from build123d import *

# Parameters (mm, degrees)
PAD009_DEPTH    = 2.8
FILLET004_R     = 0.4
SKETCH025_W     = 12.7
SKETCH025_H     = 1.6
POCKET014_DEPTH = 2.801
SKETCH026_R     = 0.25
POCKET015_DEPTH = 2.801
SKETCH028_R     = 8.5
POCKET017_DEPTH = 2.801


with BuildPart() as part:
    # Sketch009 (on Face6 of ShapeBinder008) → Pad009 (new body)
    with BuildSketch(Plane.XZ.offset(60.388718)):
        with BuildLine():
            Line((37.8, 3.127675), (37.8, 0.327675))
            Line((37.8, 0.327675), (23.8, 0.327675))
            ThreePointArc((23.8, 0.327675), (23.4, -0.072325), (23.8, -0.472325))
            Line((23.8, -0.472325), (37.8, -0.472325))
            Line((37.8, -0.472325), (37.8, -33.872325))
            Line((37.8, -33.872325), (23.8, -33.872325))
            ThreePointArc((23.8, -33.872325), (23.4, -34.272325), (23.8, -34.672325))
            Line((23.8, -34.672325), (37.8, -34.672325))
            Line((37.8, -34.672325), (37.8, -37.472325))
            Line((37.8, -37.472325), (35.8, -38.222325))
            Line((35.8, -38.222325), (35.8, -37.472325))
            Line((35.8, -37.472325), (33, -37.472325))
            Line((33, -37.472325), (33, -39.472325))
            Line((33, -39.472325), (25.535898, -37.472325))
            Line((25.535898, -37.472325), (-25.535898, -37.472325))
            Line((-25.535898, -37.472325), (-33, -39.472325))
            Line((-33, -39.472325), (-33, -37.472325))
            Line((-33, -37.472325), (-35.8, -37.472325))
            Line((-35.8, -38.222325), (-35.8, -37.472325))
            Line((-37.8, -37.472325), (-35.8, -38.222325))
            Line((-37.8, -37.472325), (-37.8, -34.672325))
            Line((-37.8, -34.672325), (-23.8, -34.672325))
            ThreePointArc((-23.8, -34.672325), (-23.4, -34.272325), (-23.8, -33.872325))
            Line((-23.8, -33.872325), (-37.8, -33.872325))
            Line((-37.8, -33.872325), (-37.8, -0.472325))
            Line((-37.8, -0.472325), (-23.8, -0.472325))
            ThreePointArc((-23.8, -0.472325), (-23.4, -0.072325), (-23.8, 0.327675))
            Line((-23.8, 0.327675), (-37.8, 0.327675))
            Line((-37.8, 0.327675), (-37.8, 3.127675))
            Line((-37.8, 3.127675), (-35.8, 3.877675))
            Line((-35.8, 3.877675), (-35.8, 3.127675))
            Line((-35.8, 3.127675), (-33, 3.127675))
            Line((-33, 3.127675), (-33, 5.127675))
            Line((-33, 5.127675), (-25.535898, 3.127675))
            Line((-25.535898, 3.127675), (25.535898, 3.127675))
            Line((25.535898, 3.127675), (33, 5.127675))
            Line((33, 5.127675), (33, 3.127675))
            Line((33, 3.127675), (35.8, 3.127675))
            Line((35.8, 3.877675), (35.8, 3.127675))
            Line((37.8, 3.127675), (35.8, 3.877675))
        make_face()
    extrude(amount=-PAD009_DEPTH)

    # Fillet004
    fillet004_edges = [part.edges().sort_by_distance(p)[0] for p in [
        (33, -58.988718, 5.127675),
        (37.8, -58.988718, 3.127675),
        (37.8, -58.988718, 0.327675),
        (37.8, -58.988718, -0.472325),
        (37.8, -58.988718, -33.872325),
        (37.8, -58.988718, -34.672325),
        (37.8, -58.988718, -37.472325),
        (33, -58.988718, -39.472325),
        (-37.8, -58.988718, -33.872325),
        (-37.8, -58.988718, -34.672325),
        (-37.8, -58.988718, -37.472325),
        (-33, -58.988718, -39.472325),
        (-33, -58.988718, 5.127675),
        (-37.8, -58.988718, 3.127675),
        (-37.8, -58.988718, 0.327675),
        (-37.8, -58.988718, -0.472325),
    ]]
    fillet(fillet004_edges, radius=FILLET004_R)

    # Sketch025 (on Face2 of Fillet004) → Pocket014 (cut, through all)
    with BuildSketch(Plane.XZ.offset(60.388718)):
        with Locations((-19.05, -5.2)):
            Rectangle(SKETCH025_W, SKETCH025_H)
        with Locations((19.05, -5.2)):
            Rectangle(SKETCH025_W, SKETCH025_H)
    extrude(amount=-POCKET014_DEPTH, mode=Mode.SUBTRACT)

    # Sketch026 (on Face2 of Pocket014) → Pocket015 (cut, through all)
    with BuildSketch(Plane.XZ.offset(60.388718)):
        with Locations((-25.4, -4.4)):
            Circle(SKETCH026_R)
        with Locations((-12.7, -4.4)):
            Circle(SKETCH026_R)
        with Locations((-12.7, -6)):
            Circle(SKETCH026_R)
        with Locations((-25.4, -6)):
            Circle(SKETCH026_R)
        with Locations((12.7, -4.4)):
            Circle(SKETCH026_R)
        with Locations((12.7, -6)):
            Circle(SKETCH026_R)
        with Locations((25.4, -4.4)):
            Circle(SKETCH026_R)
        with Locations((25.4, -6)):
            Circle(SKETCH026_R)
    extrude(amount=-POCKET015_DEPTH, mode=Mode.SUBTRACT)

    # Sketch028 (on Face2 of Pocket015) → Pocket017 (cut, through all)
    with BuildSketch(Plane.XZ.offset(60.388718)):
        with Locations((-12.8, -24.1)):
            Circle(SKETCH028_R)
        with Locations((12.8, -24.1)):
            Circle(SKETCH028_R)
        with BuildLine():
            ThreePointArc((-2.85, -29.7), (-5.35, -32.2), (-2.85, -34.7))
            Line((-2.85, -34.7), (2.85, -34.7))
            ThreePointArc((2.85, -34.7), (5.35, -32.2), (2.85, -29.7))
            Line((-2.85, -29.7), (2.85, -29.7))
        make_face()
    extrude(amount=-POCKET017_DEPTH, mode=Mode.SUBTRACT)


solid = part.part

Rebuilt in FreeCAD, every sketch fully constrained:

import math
import FreeCAD as App
import Part
import Sketcher
from FreeCAD import Vector
Q = App.Units.Quantity


def edges_at(feature, points):
    """Names of the edges that pass closest to the given points."""
    edges = feature.Shape.Edges
    near = lambda p: min(range(len(edges)), key=lambda i: edges[i].distToShape(Part.Vertex(*p))[0])
    return sorted({f"Edge{near(p) + 1}" for p in points})

doc = App.newDocument("Part")
body = doc.addObject("PartDesign::Body", "Body")

sketch1 = body.newObject("Sketcher::SketchObject", "Sketch")
sketch1.AttachmentSupport = (doc.getObject("XZ_Plane"), [""])
sketch1.MapMode = "FlatFace"
sketch1.AttachmentOffset = App.Placement(Vector(0, 0, 60.388718), App.Rotation())
sketch1.addGeometry(Part.LineSegment(Vector(37.8, 0.33, 0), Vector(37.8, 3.13, 0)), False)
sketch1.addGeometry(Part.LineSegment(Vector(37.8, 3.13, 0), Vector(35.8, 3.88, 0)), False)
sketch1.addGeometry(Part.LineSegment(Vector(35.8, 3.88, 0), Vector(35.8, 3.13, 0)), False)
sketch1.addGeometry(Part.LineSegment(Vector(35.8, 3.13, 0), Vector(33, 3.13, 0)), False)
sketch1.addGeometry(Part.LineSegment(Vector(33, 3.13, 0), Vector(33, 5.13, 0)), False)
sketch1.addGeometry(Part.LineSegment(Vector(33, 5.13, 0), Vector(25.54, 3.13, 0)), False)
sketch1.addGeometry(Part.LineSegment(Vector(25.54, 3.13, 0), Vector(-25.54, 3.13, 0)), False)
sketch1.addGeometry(Part.LineSegment(Vector(-25.54, 3.13, 0), Vector(-33, 5.13, 0)), False)
sketch1.addGeometry(Part.LineSegment(Vector(-33, 5.13, 0), Vector(-33, 3.13, 0)), False)
sketch1.addGeometry(Part.LineSegment(Vector(-33, 3.13, 0), Vector(-35.8, 3.13, 0)), False)
sketch1.addGeometry(Part.LineSegment(Vector(-35.8, 3.13, 0), Vector(-35.8, 3.88, 0)), False)
sketch1.addGeometry(Part.LineSegment(Vector(-35.8, 3.88, 0), Vector(-37.8, 3.13, 0)), False)
sketch1.addGeometry(Part.LineSegment(Vector(-37.8, 3.13, 0), Vector(-37.8, 0.33, 0)), False)
sketch1.addGeometry(Part.LineSegment(Vector(-37.8, 0.33, 0), Vector(-23.8, 0.33, 0)), False)
sketch1.addGeometry(Part.ArcOfCircle(Part.Circle(Vector(-23.8, -0.07, 0), Vector(0, 0, 1), 0.4), math.radians(-90), math.radians(90)), False)
sketch1.addGeometry(Part.LineSegment(Vector(-23.8, -0.47, 0), Vector(-37.8, -0.47, 0)), False)
sketch1.addGeometry(Part.LineSegment(Vector(-37.8, -0.47, 0), Vector(-37.8, -33.87, 0)), False)
sketch1.addGeometry(Part.LineSegment(Vector(-37.8, -33.87, 0), Vector(-23.8, -33.87, 0)), False)
sketch1.addGeometry(Part.ArcOfCircle(Part.Circle(Vector(-23.8, -34.27, 0), Vector(0, 0, 1), 0.4), math.radians(-90), math.radians(90)), False)
sketch1.addGeometry(Part.LineSegment(Vector(-23.8, -34.67, 0), Vector(-37.8, -34.67, 0)), False)
sketch1.addGeometry(Part.LineSegment(Vector(-37.8, -34.67, 0), Vector(-37.8, -37.47, 0)), False)
sketch1.addGeometry(Part.LineSegment(Vector(-37.8, -37.47, 0), Vector(-35.8, -38.22, 0)), False)
sketch1.addGeometry(Part.LineSegment(Vector(-35.8, -38.22, 0), Vector(-35.8, -37.47, 0)), False)
sketch1.addGeometry(Part.LineSegment(Vector(-35.8, -37.47, 0), Vector(-33, -37.47, 0)), False)
sketch1.addGeometry(Part.LineSegment(Vector(-33, -37.47, 0), Vector(-33, -39.47, 0)), False)
sketch1.addGeometry(Part.LineSegment(Vector(-33, -39.47, 0), Vector(-25.54, -37.47, 0)), False)
sketch1.addGeometry(Part.LineSegment(Vector(-25.54, -37.47, 0), Vector(25.54, -37.47, 0)), False)
sketch1.addGeometry(Part.LineSegment(Vector(25.54, -37.47, 0), Vector(33, -39.47, 0)), False)
sketch1.addGeometry(Part.LineSegment(Vector(33, -39.47, 0), Vector(33, -37.47, 0)), False)
sketch1.addGeometry(Part.LineSegment(Vector(33, -37.47, 0), Vector(35.8, -37.47, 0)), False)
sketch1.addGeometry(Part.LineSegment(Vector(35.8, -37.47, 0), Vector(35.8, -38.22, 0)), False)
sketch1.addGeometry(Part.LineSegment(Vector(35.8, -38.22, 0), Vector(37.8, -37.47, 0)), False)
sketch1.addGeometry(Part.LineSegment(Vector(37.8, -37.47, 0), Vector(37.8, -34.67, 0)), False)
sketch1.addGeometry(Part.LineSegment(Vector(37.8, -34.67, 0), Vector(23.8, -34.67, 0)), False)
sketch1.addGeometry(Part.ArcOfCircle(Part.Circle(Vector(23.8, -34.27, 0), Vector(0, 0, 1), 0.4), math.radians(90), math.radians(270)), False)
sketch1.addGeometry(Part.LineSegment(Vector(23.8, -33.87, 0), Vector(37.8, -33.87, 0)), False)
sketch1.addGeometry(Part.LineSegment(Vector(37.8, -33.87, 0), Vector(37.8, -0.47, 0)), False)
sketch1.addGeometry(Part.LineSegment(Vector(37.8, -0.47, 0), Vector(23.8, -0.47, 0)), False)
sketch1.addGeometry(Part.ArcOfCircle(Part.Circle(Vector(23.8, -0.07, 0), Vector(0, 0, 1), 0.4), math.radians(90), math.radians(270)), False)
sketch1.addGeometry(Part.LineSegment(Vector(23.8, 0.33, 0), Vector(37.8, 0.33, 0)), False)
sketch1.addConstraint(Sketcher.Constraint("Coincident", 0, 2, 1, 1))
sketch1.addConstraint(Sketcher.Constraint("Coincident", 1, 2, 2, 1))
sketch1.addConstraint(Sketcher.Constraint("Coincident", 2, 2, 3, 1))
sketch1.addConstraint(Sketcher.Constraint("Coincident", 3, 2, 4, 1))
sketch1.addConstraint(Sketcher.Constraint("Coincident", 4, 2, 5, 1))
sketch1.addConstraint(Sketcher.Constraint("Coincident", 5, 2, 6, 1))
sketch1.addConstraint(Sketcher.Constraint("Coincident", 6, 2, 7, 1))
sketch1.addConstraint(Sketcher.Constraint("Coincident", 7, 2, 8, 1))
sketch1.addConstraint(Sketcher.Constraint("Coincident", 8, 2, 9, 1))
sketch1.addConstraint(Sketcher.Constraint("Coincident", 9, 2, 10, 1))
sketch1.addConstraint(Sketcher.Constraint("Coincident", 10, 2, 11, 1))
sketch1.addConstraint(Sketcher.Constraint("Coincident", 11, 2, 12, 1))
sketch1.addConstraint(Sketcher.Constraint("Coincident", 12, 2, 13, 1))
sketch1.addConstraint(Sketcher.Constraint("Tangent", 13, 2, 14, 2))
sketch1.addConstraint(Sketcher.Constraint("Tangent", 14, 1, 15, 1))
sketch1.addConstraint(Sketcher.Constraint("Coincident", 15, 2, 16, 1))
sketch1.addConstraint(Sketcher.Constraint("Coincident", 16, 2, 17, 1))
sketch1.addConstraint(Sketcher.Constraint("Tangent", 17, 2, 18, 2))
sketch1.addConstraint(Sketcher.Constraint("Tangent", 18, 1, 19, 1))
sketch1.addConstraint(Sketcher.Constraint("Coincident", 19, 2, 20, 1))
sketch1.addConstraint(Sketcher.Constraint("Coincident", 20, 2, 21, 1))
sketch1.addConstraint(Sketcher.Constraint("Coincident", 21, 2, 22, 1))
sketch1.addConstraint(Sketcher.Constraint("Coincident", 22, 2, 23, 1))
sketch1.addConstraint(Sketcher.Constraint("Coincident", 23, 2, 24, 1))
sketch1.addConstraint(Sketcher.Constraint("Coincident", 24, 2, 25, 1))
sketch1.addConstraint(Sketcher.Constraint("Coincident", 25, 2, 26, 1))
sketch1.addConstraint(Sketcher.Constraint("Coincident", 26, 2, 27, 1))
sketch1.addConstraint(Sketcher.Constraint("Coincident", 27, 2, 28, 1))
sketch1.addConstraint(Sketcher.Constraint("Coincident", 28, 2, 29, 1))
sketch1.addConstraint(Sketcher.Constraint("Coincident", 29, 2, 30, 1))
sketch1.addConstraint(Sketcher.Constraint("Coincident", 30, 2, 31, 1))
sketch1.addConstraint(Sketcher.Constraint("Coincident", 31, 2, 32, 1))
sketch1.addConstraint(Sketcher.Constraint("Coincident", 32, 2, 33, 1))
sketch1.addConstraint(Sketcher.Constraint("Tangent", 33, 2, 34, 2))
sketch1.addConstraint(Sketcher.Constraint("Tangent", 34, 1, 35, 1))
sketch1.addConstraint(Sketcher.Constraint("Coincident", 35, 2, 36, 1))
sketch1.addConstraint(Sketcher.Constraint("Coincident", 36, 2, 37, 1))
sketch1.addConstraint(Sketcher.Constraint("Tangent", 37, 2, 38, 2))
sketch1.addConstraint(Sketcher.Constraint("Tangent", 38, 1, 39, 1))
sketch1.addConstraint(Sketcher.Constraint("Coincident", 39, 2, 0, 1))
sketch1.addConstraint(Sketcher.Constraint("Vertical", 0))
sketch1.addConstraint(Sketcher.Constraint("Vertical", 2))
sketch1.addConstraint(Sketcher.Constraint("Horizontal", 3))
sketch1.addConstraint(Sketcher.Constraint("Vertical", 4))
sketch1.addConstraint(Sketcher.Constraint("Horizontal", 6))
sketch1.addConstraint(Sketcher.Constraint("Vertical", 8))
sketch1.addConstraint(Sketcher.Constraint("Horizontal", 9))
sketch1.addConstraint(Sketcher.Constraint("Vertical", 10))
sketch1.addConstraint(Sketcher.Constraint("Vertical", 12))
sketch1.addConstraint(Sketcher.Constraint("Horizontal", 13))
sketch1.addConstraint(Sketcher.Constraint("Horizontal", 15))
sketch1.addConstraint(Sketcher.Constraint("Vertical", 16))
sketch1.addConstraint(Sketcher.Constraint("Horizontal", 17))
sketch1.addConstraint(Sketcher.Constraint("Horizontal", 19))
sketch1.addConstraint(Sketcher.Constraint("Vertical", 20))
sketch1.addConstraint(Sketcher.Constraint("Vertical", 22))
sketch1.addConstraint(Sketcher.Constraint("Horizontal", 23))
sketch1.addConstraint(Sketcher.Constraint("Vertical", 24))
sketch1.addConstraint(Sketcher.Constraint("Horizontal", 26))
sketch1.addConstraint(Sketcher.Constraint("Vertical", 28))
sketch1.addConstraint(Sketcher.Constraint("Horizontal", 29))
sketch1.addConstraint(Sketcher.Constraint("Vertical", 30))
sketch1.addConstraint(Sketcher.Constraint("Vertical", 32))
sketch1.addConstraint(Sketcher.Constraint("Horizontal", 33))
sketch1.addConstraint(Sketcher.Constraint("Horizontal", 35))
sketch1.addConstraint(Sketcher.Constraint("Vertical", 36))
sketch1.addConstraint(Sketcher.Constraint("Horizontal", 37))
sketch1.addConstraint(Sketcher.Constraint("Horizontal", 39))
sketch1.addConstraint(Sketcher.Constraint("Equal", 14, 18))
sketch1.addConstraint(Sketcher.Constraint("Equal", 18, 34))
sketch1.addConstraint(Sketcher.Constraint("Equal", 34, 38))
sketch1.addConstraint(Sketcher.Constraint("Symmetric", 18, 3, 34, 3, -2))
sketch1.addConstraint(Sketcher.Constraint("Symmetric", 14, 3, 38, 3, -2))
sketch1.addConstraint(Sketcher.Constraint("Symmetric", 4, 2, 7, 2, -2))
sketch1.addConstraint(Sketcher.Constraint("Symmetric", 2, 2, 9, 2, -2))
sketch1.addConstraint(Sketcher.Constraint("Symmetric", 0, 2, 11, 2, -2))
sketch1.addConstraint(Sketcher.Constraint("Symmetric", 24, 2, 27, 2, -2))
sketch1.addConstraint(Sketcher.Constraint("Symmetric", 22, 2, 29, 2, -2))
sketch1.addConstraint(Sketcher.Constraint("Symmetric", 20, 2, 31, 2, -2))
sketch1.addConstraint(Sketcher.Constraint("Parallel", 1, 21))
sketch1.addConstraint(Sketcher.Constraint("Parallel", 5, 25))
sketch1.addConstraint(Sketcher.Constraint("Parallel", 7, 27))
sketch1.addConstraint(Sketcher.Constraint("Parallel", 11, 31))
sketch1.addConstraint(Sketcher.Constraint("Horizontal", 0, 2, 2, 2))
sketch1.addConstraint(Sketcher.Constraint("Horizontal", 3, 2, 5, 2))
sketch1.addConstraint(Sketcher.Constraint("Horizontal", 1, 2, 10, 2))
sketch1.addConstraint(Sketcher.Constraint("Horizontal", 20, 2, 22, 2))
sketch1.addConstraint(Sketcher.Constraint("Horizontal", 23, 2, 25, 2))
sketch1.addConstraint(Sketcher.Constraint("Vertical", 14, 3, 18, 3))
sketch1.addConstraint(Sketcher.Constraint("Vertical", 12, 2, 15, 2))
sketch1.addConstraint(Sketcher.Constraint("Vertical", 16, 2, 19, 2))
sketch1.addConstraint(Sketcher.Constraint("Vertical", 10, 2, 21, 2))
sketch1.addConstraint(Sketcher.Constraint("Vertical", 8, 2, 23, 2))
sketch1.addConstraint(Sketcher.Constraint("Vertical", 6, 2, 25, 2))
sketch1.addConstraint(Sketcher.Constraint("Vertical", 5, 2, 26, 2))
sketch1.addConstraint(Sketcher.Constraint("Vertical", 32, 2, 35, 2))
sketch1.addConstraint(Sketcher.Constraint("Equal", 29, 0))
sketch1.addConstraint(Sketcher.Constraint("Equal", 12, 20))
sketch1.addConstraint(Sketcher.Constraint("Radius", 14, Q("0.4 mm")))
sketch1.addConstraint(Sketcher.Constraint("DistanceX", 13, 1, 13, 2, Q("14 mm")))
sketch1.addConstraint(Sketcher.Constraint("DistanceY", 4, 1, 4, 2, Q("2 mm")))
sketch1.addConstraint(Sketcher.Constraint("Angle", 5, Q("-165.000001 deg")))
sketch1.addConstraint(Sketcher.Constraint("DistanceX", 3, 2, 3, 1, Q("2.8 mm")))
sketch1.addConstraint(Sketcher.Constraint("DistanceY", 16, 2, 16, 1, Q("33.4 mm")))
sketch1.addConstraint(Sketcher.Constraint("DistanceX", -1, 1, 3, 2, Q("33 mm")))
sketch1.addConstraint(Sketcher.Constraint("DistanceX", 1, 2, 0, 2, Q("2 mm")))
sketch1.addConstraint(Sketcher.Constraint("DistanceY", 2, 2, 2, 1, Q("0.75 mm")))
sketch1.addConstraint(Sketcher.Constraint("DistanceY", 14, 3, -1, 1, Q("0.072325 mm")))
pad1 = body.newObject("PartDesign::Pad", "Pad")
pad1.Profile = sketch1
pad1.Length = 2.8
pad1.Reversed = True
doc.recompute()

fillet = body.newObject("PartDesign::Fillet", "Fillet")
fillet.Base = (pad1, edges_at(pad1, [
    (33, -58.989, 5.128),
    (37.8, -58.989, 3.128),
    (37.8, -58.989, 0.328),
    (37.8, -58.989, -0.472),
    (37.8, -58.989, -33.872),
    (37.8, -58.989, -34.672),
    (37.8, -58.989, -37.472),
    (33, -58.989, -39.472),
    (-37.8, -58.989, -33.872),
    (-37.8, -58.989, -34.672),
    (-37.8, -58.989, -37.472),
    (-33, -58.989, -39.472),
    (-33, -58.989, 5.128),
    (-37.8, -58.989, 3.128),
    (-37.8, -58.989, 0.328),
    (-37.8, -58.989, -0.472),
]))
fillet.Radius = 0.4

sketch2 = body.newObject("Sketcher::SketchObject", "Sketch001")
sketch2.AttachmentSupport = (doc.getObject("XZ_Plane"), [""])
sketch2.MapMode = "FlatFace"
sketch2.AttachmentOffset = App.Placement(Vector(0, 0, 60.388718), App.Rotation())
sketch2.addGeometry(Part.LineSegment(Vector(-25.4, -4.4, 0), Vector(-25.4, -6, 0)), False)
sketch2.addGeometry(Part.LineSegment(Vector(-25.4, -6, 0), Vector(-12.7, -6, 0)), False)
sketch2.addGeometry(Part.LineSegment(Vector(-12.7, -6, 0), Vector(-12.7, -4.4, 0)), False)
sketch2.addGeometry(Part.LineSegment(Vector(-12.7, -4.4, 0), Vector(-25.4, -4.4, 0)), False)
sketch2.addGeometry(Part.LineSegment(Vector(12.7, -4.4, 0), Vector(12.7, -6, 0)), False)
sketch2.addGeometry(Part.LineSegment(Vector(12.7, -6, 0), Vector(25.4, -6, 0)), False)
sketch2.addGeometry(Part.LineSegment(Vector(25.4, -6, 0), Vector(25.4, -4.4, 0)), False)
sketch2.addGeometry(Part.LineSegment(Vector(25.4, -4.4, 0), Vector(12.7, -4.4, 0)), False)
sketch2.addConstraint(Sketcher.Constraint("Coincident", 0, 2, 1, 1))
sketch2.addConstraint(Sketcher.Constraint("Coincident", 1, 2, 2, 1))
sketch2.addConstraint(Sketcher.Constraint("Coincident", 2, 2, 3, 1))
sketch2.addConstraint(Sketcher.Constraint("Coincident", 3, 2, 0, 1))
sketch2.addConstraint(Sketcher.Constraint("Coincident", 4, 2, 5, 1))
sketch2.addConstraint(Sketcher.Constraint("Coincident", 5, 2, 6, 1))
sketch2.addConstraint(Sketcher.Constraint("Coincident", 6, 2, 7, 1))
sketch2.addConstraint(Sketcher.Constraint("Coincident", 7, 2, 4, 1))
sketch2.addConstraint(Sketcher.Constraint("Vertical", 0))
sketch2.addConstraint(Sketcher.Constraint("Horizontal", 1))
sketch2.addConstraint(Sketcher.Constraint("Vertical", 2))
sketch2.addConstraint(Sketcher.Constraint("Horizontal", 3))
sketch2.addConstraint(Sketcher.Constraint("Vertical", 4))
sketch2.addConstraint(Sketcher.Constraint("Horizontal", 5))
sketch2.addConstraint(Sketcher.Constraint("Vertical", 6))
sketch2.addConstraint(Sketcher.Constraint("Horizontal", 7))
sketch2.addConstraint(Sketcher.Constraint("Symmetric", 1, 2, 4, 2, -2))
sketch2.addConstraint(Sketcher.Constraint("Symmetric", 3, 2, 6, 2, -2))
sketch2.addConstraint(Sketcher.Constraint("DistanceX", 1, 1, 1, 2, Q("12.7 mm")))
sketch2.addConstraint(Sketcher.Constraint("DistanceY", 0, 2, 0, 1, Q("1.6 mm")))
sketch2.addConstraint(Sketcher.Constraint("DistanceY", 0, 2, -1, 1, Q("6 mm")))
sketch2.addConstraint(Sketcher.Constraint("DistanceX", 0, 2, -1, 1, Q("25.4 mm")))
pocket1 = body.newObject("PartDesign::Pocket", "Pocket")
pocket1.Profile = sketch2
pocket1.Type = "ThroughAll"

sketch3 = body.newObject("Sketcher::SketchObject", "Sketch002")
sketch3.AttachmentSupport = (doc.getObject("XZ_Plane"), [""])
sketch3.MapMode = "FlatFace"
sketch3.AttachmentOffset = App.Placement(Vector(0, 0, 60.388718), App.Rotation())
sketch3.addGeometry(Part.Circle(Vector(-25.4, -4.4, 0), Vector(0, 0, 1), 0.25), False)
sketch3.addGeometry(Part.Circle(Vector(-12.7, -4.4, 0), Vector(0, 0, 1), 0.25), False)
sketch3.addGeometry(Part.Circle(Vector(-12.7, -6, 0), Vector(0, 0, 1), 0.25), False)
sketch3.addGeometry(Part.Circle(Vector(-25.4, -6, 0), Vector(0, 0, 1), 0.25), False)
sketch3.addGeometry(Part.Circle(Vector(12.7, -4.4, 0), Vector(0, 0, 1), 0.25), False)
sketch3.addGeometry(Part.Circle(Vector(12.7, -6, 0), Vector(0, 0, 1), 0.25), False)
sketch3.addGeometry(Part.Circle(Vector(25.4, -4.4, 0), Vector(0, 0, 1), 0.25), False)
sketch3.addGeometry(Part.Circle(Vector(25.4, -6, 0), Vector(0, 0, 1), 0.25), False)
sketch3.addConstraint(Sketcher.Constraint("Equal", 0, 1))
sketch3.addConstraint(Sketcher.Constraint("Equal", 1, 2))
sketch3.addConstraint(Sketcher.Constraint("Equal", 2, 3))
sketch3.addConstraint(Sketcher.Constraint("Equal", 3, 4))
sketch3.addConstraint(Sketcher.Constraint("Equal", 4, 5))
sketch3.addConstraint(Sketcher.Constraint("Equal", 5, 6))
sketch3.addConstraint(Sketcher.Constraint("Equal", 6, 7))
sketch3.addConstraint(Sketcher.Constraint("Symmetric", 1, 3, 4, 3, -2))
sketch3.addConstraint(Sketcher.Constraint("Symmetric", 2, 3, 5, 3, -2))
sketch3.addConstraint(Sketcher.Constraint("Symmetric", 0, 3, 6, 3, -2))
sketch3.addConstraint(Sketcher.Constraint("Symmetric", 3, 3, 7, 3, -2))
sketch3.addConstraint(Sketcher.Constraint("Horizontal", 0, 3, 1, 3))
sketch3.addConstraint(Sketcher.Constraint("Horizontal", 2, 3, 3, 3))
sketch3.addConstraint(Sketcher.Constraint("Vertical", 1, 3, 2, 3))
sketch3.addConstraint(Sketcher.Constraint("Vertical", 0, 3, 3, 3))
sketch3.addConstraint(Sketcher.Constraint("Diameter", 0, Q("0.5 mm")))
sketch3.addConstraint(Sketcher.Constraint("DistanceY", 2, 3, -1, 1, Q("6 mm")))
sketch3.addConstraint(Sketcher.Constraint("DistanceX", 0, 3, -1, 1, Q("25.4 mm")))
sketch3.addConstraint(Sketcher.Constraint("DistanceY", 0, 3, -1, 1, Q("4.4 mm")))
sketch3.addConstraint(Sketcher.Constraint("DistanceX", 1, 3, -1, 1, Q("12.7 mm")))
pocket2 = body.newObject("PartDesign::Pocket", "Pocket001")
pocket2.Profile = sketch3
pocket2.Type = "ThroughAll"

sketch4 = body.newObject("Sketcher::SketchObject", "Sketch003")
sketch4.AttachmentSupport = (doc.getObject("XZ_Plane"), [""])
sketch4.MapMode = "FlatFace"
sketch4.AttachmentOffset = App.Placement(Vector(0, 0, 60.388718), App.Rotation())
sketch4.addGeometry(Part.Circle(Vector(-12.8, -24.1, 0), Vector(0, 0, 1), 8.5), False)
sketch4.addGeometry(Part.Circle(Vector(12.8, -24.1, 0), Vector(0, 0, 1), 8.5), False)
sketch4.addGeometry(Part.ArcOfCircle(Part.Circle(Vector(-2.9, -32.2, 0), Vector(0, 0, 1), 2.5), math.radians(90), math.radians(270)), False)
sketch4.addGeometry(Part.LineSegment(Vector(-2.9, -34.7, 0), Vector(2.9, -34.7, 0)), False)
sketch4.addGeometry(Part.ArcOfCircle(Part.Circle(Vector(2.9, -32.2, 0), Vector(0, 0, 1), 2.5), math.radians(-90), math.radians(90)), False)
sketch4.addGeometry(Part.LineSegment(Vector(2.9, -29.7, 0), Vector(-2.9, -29.7, 0)), False)
sketch4.addConstraint(Sketcher.Constraint("Tangent", 2, 2, 3, 1))
sketch4.addConstraint(Sketcher.Constraint("Tangent", 3, 2, 4, 1))
sketch4.addConstraint(Sketcher.Constraint("Tangent", 4, 2, 5, 1))
sketch4.addConstraint(Sketcher.Constraint("Tangent", 5, 2, 2, 1))
sketch4.addConstraint(Sketcher.Constraint("Horizontal", 3))
sketch4.addConstraint(Sketcher.Constraint("Horizontal", 5))
sketch4.addConstraint(Sketcher.Constraint("Equal", 0, 1))
sketch4.addConstraint(Sketcher.Constraint("Symmetric", 0, 3, 1, 3, -2))
sketch4.addConstraint(Sketcher.Constraint("Diameter", 0, Q("17 mm")))
sketch4.addConstraint(Sketcher.Constraint("Radius", 2, Q("2.5 mm")))
sketch4.addConstraint(Sketcher.Constraint("DistanceX", 3, 1, 3, 2, Q("5.7 mm")))
sketch4.addConstraint(Sketcher.Constraint("DistanceX", 0, 3, -1, 1, Q("12.8 mm")))
sketch4.addConstraint(Sketcher.Constraint("DistanceY", 0, 3, -1, 1, Q("24.1 mm")))
sketch4.addConstraint(Sketcher.Constraint("DistanceY", 2, 3, -1, 1, Q("32.2 mm")))
sketch4.addConstraint(Sketcher.Constraint("DistanceX", 2, 3, -1, 1, Q("2.85 mm")))
pocket3 = body.newObject("PartDesign::Pocket", "Pocket002")
pocket3.Profile = sketch4
pocket3.Type = "ThroughAll"

doc.recompute()
